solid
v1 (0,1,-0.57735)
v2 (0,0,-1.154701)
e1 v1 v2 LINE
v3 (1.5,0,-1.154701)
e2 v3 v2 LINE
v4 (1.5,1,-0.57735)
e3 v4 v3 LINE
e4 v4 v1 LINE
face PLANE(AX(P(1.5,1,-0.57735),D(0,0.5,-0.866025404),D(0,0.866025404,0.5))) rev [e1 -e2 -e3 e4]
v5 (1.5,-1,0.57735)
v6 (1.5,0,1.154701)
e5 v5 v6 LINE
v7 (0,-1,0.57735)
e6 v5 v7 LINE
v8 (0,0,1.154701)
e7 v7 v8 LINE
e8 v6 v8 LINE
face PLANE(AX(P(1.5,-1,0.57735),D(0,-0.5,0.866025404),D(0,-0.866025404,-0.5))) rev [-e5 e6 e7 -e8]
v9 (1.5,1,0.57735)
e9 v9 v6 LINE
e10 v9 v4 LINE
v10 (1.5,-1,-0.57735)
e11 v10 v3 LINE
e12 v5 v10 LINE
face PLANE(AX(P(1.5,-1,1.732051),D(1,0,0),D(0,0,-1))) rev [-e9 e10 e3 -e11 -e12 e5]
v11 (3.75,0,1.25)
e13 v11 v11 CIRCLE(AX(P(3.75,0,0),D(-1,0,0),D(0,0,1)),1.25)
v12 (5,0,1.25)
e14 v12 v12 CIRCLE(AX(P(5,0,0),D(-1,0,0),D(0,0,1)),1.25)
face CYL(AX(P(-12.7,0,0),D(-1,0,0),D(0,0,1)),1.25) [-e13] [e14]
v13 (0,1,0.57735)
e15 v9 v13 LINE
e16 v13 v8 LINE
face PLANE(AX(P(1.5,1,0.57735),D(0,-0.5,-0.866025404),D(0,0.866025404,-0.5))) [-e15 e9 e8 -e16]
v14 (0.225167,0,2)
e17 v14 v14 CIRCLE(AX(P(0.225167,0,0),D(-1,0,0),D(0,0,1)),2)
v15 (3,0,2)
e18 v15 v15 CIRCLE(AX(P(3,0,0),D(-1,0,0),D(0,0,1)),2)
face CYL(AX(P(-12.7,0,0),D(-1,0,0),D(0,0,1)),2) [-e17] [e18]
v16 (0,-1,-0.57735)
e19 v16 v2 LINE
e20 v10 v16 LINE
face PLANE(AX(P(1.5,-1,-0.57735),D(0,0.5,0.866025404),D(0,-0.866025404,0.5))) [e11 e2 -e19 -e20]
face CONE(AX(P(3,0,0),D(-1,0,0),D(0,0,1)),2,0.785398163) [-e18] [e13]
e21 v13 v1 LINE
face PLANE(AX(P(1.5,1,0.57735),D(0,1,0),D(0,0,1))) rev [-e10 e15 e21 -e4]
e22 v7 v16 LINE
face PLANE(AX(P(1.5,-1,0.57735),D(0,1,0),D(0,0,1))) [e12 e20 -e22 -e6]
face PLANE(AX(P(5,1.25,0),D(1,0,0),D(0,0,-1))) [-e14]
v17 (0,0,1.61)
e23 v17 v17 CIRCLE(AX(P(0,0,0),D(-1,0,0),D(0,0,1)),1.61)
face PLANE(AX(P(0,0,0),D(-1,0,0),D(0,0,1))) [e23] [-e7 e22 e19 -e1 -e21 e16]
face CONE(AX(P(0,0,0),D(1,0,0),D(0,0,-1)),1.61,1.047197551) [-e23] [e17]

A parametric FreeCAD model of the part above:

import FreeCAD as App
import Part
import Sketcher
from FreeCAD import Vector
Q = App.Units.Quantity


def add_polygon(sketch, points):
    """Adds a closed chain of lines whose ends are joined by coincident constraints."""
    first, n = sketch.GeometryCount, len(points)
    for a, b in zip(points, points[1:] + points[:1]):
        sketch.addGeometry(Part.LineSegment(App.Vector(*a, 0), App.Vector(*b, 0)), False)
    for i in range(n):
        sketch.addConstraint(Sketcher.Constraint("Coincident", first + i, 2, first + (i + 1) % n, 1))

doc = App.newDocument("Part")
body = doc.addObject("PartDesign::Body", "Body")

# Sketch on XY plane
sketch1 = doc.addObject("Sketcher::SketchObject", "Sketch")
body.addObject(sketch1)
sketch1.AttachmentSupport = (doc.XY_Plane, [""])
sketch1.MapMode = "FlatFace"
add_polygon(sketch1, [(0, 1.61), (0, 0), (5, 0), (5, 1.25), (3.75, 1.25), (3, 2), (0.23, 2)])  # lines 0-6
sketch1.addConstraint([
    Sketcher.Constraint("Vertical", 0),
    Sketcher.Constraint("Horizontal", 1),
    Sketcher.Constraint("Vertical", 2),
    Sketcher.Constraint("Horizontal", 3),
    Sketcher.Constraint("Horizontal", 5),
    Sketcher.Constraint("Coincident", 0, 2, -1, 1),
    Sketcher.Constraint("Equal", 3, 2),
    Sketcher.Constraint("DistanceX", 1, 1, 1, 2, 5.0),
    Sketcher.Constraint("Angle", 4, Q("135 deg")),
    Sketcher.Constraint("Angle", 6, Q("-120 deg")),
    Sketcher.Constraint("DistanceX", -1, 1, 4, 2, 3.0),
    Sketcher.Constraint("DistanceX", 3, 2, 3, 1, 1.25),
    Sketcher.Constraint("DistanceY", 0, 2, 0, 1, 1.61),
])
revolution = doc.addObject("PartDesign::Revolution", "Revolution")
body.addObject(revolution)
revolution.Profile = sketch1
revolution.ReferenceAxis = (sketch1, ["H_Axis"])
revolution.Angle = 360

# Sketch on YZ plane
sketch2 = doc.addObject("Sketcher::SketchObject", "Sketch001")
body.addObject(sketch2)
sketch2.AttachmentSupport = (doc.YZ_Plane, [""])
sketch2.MapMode = "FlatFace"
add_polygon(sketch2, [(1, 0.6), (1, -0.6), (0, -1.2), (-1, -0.6), (-1, 0.6), (0, 1.2)])  # lines 0-5
sketch2.addConstraint([
    Sketcher.Constraint("Vertical", 0),
    Sketcher.Constraint("Vertical", 3),
    Sketcher.Constraint("Symmetric", 0, 2, 3, 2, -1, 1),
    Sketcher.Constraint("Symmetric", 1, 2, 4, 2, -1, 1),
    Sketcher.Constraint("PointOnObject", 1, 2, -2),
    Sketcher.Constraint("Parallel", 2, 5),
    Sketcher.Constraint("Horizontal", 0, 2, 2, 2),
    Sketcher.Constraint("Angle", 1, Q("-150 deg")),
    Sketcher.Constraint("DistanceX", -1, 1, 0, 2, 1.0),
    Sketcher.Constraint("DistanceY", 0, 2, 0, 1, 1.154701),
])
pocket1 = doc.addObject("PartDesign::Pocket", "Pocket")
body.addObject(pocket1)
pocket1.Profile = sketch2
pocket1.Length = 1.5
pocket1.Reversed = True

doc.recompute()
